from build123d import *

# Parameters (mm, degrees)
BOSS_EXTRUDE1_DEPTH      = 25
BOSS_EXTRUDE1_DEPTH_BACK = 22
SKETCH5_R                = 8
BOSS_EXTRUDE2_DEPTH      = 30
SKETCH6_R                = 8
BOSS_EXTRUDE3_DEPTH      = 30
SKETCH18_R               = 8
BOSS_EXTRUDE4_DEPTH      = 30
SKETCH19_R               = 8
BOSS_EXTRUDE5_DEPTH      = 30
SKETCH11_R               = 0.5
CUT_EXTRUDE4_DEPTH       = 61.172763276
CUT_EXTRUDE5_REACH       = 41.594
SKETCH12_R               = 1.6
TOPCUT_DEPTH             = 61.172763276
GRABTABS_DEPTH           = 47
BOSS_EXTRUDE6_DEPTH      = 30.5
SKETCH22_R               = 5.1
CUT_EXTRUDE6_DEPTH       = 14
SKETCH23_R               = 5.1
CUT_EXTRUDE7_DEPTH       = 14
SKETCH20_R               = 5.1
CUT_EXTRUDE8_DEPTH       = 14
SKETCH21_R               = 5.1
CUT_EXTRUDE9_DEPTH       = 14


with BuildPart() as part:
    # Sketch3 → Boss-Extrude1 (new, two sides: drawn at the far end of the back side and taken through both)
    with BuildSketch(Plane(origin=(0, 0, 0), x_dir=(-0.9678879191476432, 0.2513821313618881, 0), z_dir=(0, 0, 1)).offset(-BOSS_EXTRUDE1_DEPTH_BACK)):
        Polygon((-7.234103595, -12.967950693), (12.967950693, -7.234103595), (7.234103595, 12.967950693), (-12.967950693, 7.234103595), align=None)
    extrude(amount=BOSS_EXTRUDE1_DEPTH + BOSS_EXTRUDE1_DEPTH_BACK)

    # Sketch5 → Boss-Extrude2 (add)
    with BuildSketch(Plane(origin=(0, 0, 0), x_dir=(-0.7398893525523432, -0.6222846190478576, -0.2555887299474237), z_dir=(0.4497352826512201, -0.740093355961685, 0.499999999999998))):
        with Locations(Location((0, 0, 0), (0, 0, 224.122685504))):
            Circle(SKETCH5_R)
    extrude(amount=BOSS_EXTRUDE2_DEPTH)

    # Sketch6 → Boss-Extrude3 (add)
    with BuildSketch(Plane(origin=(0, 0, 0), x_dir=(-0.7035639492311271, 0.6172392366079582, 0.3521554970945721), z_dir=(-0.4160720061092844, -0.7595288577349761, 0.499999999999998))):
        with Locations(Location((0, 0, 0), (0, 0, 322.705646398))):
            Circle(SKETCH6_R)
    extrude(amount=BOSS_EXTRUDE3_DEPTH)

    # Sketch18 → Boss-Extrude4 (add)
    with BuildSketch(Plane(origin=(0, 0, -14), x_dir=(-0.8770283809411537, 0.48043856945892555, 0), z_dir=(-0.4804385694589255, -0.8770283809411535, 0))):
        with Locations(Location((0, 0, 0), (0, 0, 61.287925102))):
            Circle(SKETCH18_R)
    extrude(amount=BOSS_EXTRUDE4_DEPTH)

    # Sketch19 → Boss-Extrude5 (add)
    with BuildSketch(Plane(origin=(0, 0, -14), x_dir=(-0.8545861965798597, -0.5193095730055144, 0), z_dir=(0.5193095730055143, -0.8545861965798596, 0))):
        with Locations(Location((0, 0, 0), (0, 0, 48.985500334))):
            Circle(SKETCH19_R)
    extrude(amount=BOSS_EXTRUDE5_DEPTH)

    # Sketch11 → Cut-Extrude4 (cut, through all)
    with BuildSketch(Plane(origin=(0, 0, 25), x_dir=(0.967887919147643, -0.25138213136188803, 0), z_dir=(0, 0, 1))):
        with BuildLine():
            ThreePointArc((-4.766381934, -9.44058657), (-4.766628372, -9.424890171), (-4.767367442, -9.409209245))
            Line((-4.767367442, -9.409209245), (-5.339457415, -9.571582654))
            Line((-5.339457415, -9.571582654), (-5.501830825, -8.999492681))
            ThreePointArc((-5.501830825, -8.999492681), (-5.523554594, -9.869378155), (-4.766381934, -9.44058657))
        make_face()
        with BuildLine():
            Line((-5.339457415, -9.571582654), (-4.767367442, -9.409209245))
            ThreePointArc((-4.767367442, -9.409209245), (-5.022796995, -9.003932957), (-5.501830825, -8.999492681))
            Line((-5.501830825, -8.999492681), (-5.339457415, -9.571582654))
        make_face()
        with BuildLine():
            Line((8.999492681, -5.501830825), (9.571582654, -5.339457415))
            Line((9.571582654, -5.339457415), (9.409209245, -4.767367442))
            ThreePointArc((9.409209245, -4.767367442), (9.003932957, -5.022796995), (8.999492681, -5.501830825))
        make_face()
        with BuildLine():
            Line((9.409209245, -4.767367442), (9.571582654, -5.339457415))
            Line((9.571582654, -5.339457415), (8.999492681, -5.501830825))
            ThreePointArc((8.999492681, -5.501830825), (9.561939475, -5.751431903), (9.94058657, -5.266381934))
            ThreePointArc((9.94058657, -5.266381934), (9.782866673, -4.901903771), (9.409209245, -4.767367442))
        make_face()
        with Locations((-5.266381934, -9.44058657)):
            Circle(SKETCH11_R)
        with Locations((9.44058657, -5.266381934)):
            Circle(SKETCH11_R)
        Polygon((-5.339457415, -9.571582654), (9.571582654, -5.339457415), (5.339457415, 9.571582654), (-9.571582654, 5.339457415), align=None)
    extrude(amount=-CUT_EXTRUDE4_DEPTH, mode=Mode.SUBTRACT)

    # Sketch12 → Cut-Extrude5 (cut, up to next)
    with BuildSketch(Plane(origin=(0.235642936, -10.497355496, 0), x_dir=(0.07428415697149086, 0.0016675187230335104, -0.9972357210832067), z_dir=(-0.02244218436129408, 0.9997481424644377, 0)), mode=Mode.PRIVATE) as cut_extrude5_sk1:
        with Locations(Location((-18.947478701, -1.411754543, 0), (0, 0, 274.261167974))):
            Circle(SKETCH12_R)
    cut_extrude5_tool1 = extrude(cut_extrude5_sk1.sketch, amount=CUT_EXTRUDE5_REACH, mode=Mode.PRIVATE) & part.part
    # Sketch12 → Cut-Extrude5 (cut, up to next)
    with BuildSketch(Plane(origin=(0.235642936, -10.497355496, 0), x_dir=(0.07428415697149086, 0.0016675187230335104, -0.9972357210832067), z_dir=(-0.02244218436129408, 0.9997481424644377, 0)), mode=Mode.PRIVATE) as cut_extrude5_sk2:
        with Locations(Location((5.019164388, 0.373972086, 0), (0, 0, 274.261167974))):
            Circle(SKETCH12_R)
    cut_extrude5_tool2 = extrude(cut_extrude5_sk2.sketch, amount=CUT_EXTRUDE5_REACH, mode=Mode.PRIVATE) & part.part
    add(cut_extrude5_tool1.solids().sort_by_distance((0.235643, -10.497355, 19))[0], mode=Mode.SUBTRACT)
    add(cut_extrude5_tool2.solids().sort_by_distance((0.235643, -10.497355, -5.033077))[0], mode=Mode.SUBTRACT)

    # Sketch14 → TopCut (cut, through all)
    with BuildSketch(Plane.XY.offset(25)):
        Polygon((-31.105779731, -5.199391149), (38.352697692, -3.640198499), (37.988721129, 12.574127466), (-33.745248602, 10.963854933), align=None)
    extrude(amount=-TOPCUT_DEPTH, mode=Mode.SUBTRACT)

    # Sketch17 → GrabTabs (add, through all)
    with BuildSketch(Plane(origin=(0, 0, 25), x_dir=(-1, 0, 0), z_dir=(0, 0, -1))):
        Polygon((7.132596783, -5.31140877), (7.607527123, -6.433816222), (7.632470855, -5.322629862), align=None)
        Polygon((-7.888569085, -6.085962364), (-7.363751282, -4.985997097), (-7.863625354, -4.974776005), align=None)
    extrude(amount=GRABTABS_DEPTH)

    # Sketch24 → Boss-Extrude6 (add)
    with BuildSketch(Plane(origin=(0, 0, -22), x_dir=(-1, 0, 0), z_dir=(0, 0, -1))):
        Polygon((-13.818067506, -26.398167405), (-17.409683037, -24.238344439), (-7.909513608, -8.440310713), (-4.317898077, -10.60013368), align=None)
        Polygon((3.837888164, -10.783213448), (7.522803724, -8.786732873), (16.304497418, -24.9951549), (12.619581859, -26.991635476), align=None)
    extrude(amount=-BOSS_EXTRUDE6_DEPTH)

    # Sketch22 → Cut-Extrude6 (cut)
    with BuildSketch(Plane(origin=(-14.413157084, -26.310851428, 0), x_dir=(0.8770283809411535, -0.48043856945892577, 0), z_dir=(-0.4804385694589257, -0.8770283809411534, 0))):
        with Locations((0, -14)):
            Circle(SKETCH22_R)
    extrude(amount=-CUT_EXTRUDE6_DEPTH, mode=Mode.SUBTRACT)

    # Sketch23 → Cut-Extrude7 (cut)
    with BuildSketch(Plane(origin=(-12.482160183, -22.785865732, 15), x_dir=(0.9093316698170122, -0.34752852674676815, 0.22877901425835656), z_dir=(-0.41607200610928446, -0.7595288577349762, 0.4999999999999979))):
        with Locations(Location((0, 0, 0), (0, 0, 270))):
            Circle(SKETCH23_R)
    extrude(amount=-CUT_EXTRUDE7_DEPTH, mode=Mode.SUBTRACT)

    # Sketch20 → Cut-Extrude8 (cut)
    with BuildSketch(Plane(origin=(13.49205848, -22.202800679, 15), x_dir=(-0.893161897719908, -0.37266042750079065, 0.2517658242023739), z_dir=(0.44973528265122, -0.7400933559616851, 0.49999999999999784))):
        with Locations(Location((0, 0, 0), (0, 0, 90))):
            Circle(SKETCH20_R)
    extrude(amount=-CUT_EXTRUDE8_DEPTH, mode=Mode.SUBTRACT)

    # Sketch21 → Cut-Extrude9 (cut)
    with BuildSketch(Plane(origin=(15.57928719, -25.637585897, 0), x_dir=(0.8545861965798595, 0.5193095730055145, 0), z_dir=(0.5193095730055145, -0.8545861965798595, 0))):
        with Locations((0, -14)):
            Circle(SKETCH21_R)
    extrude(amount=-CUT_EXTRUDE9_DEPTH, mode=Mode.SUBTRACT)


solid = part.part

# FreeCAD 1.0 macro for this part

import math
import FreeCAD as App
import Part
import Sketcher

V = App.Vector
Q = App.Units.Quantity


def add_polygon(sketch, points):
    """Adds a closed chain of lines whose ends are joined by coincident constraints."""
    first, n = sketch.GeometryCount, len(points)
    for a, b in zip(points, points[1:] + points[:1]):
        sketch.addGeometry(Part.LineSegment(App.Vector(*a, 0), App.Vector(*b, 0)), False)
    for i in range(n):
        sketch.addConstraint(Sketcher.Constraint("Coincident", first + i, 2, first + (i + 1) % n, 1))

doc = App.newDocument("Part")
body = doc.addObject("PartDesign::Body", "Body")

# Sketch on XY plane
sketch1 = doc.addObject("Sketcher::SketchObject", "Sketch")
body.addObject(sketch1)
sketch1.AttachmentSupport = (doc.XY_Plane, [""])
sketch1.MapMode = "FlatFace"
add_polygon(sketch1, [(10.261713, 10.732998), (-10.732998, 10.261713), (-10.261713, -10.732998), (10.732998, -10.261713)])  # lines 0-3
sketch1.addConstraint(Sketcher.Constraint("Symmetric", 0, 2, 2, 2, -1, 1))
sketch1.addConstraint(Sketcher.Constraint("Symmetric", 1, 2, 3, 2, -1, 1))
sketch1.addConstraint(Sketcher.Constraint("Perpendicular", 0, 1))
sketch1.addConstraint(Sketcher.Constraint("Equal", 0, 1))
sketch1.addConstraint(Sketcher.Constraint("Distance", 0, Q("21 mm")))
sketch1.addConstraint(Sketcher.Constraint("DistanceX", 0, 2, -1, 1, Q("10.732998 mm")))
pad1 = doc.addObject("PartDesign::Pad", "Pad")
body.addObject(pad1)
pad1.Profile = sketch1
pad1.Type = "TwoLengths"
pad1.Length = 25
pad1.Length2 = 22

# Sketch on an angled plane
sketch2 = doc.addObject("Sketcher::SketchObject", "Sketch001")
body.addObject(sketch2)
sketch2.Placement = App.Placement(V(0, 0, 0), App.Rotation(V(-0.739889353, -0.622284619, -0.25558873), V(0.50030183, -0.254997407, -0.827450544), V(0.449735283, -0.740093356, 0.5), "ZXY"))
sketch2.addGeometry(Part.Circle(V(0, 0, 0), V(0, 0, 1), 8), False)
sketch2.addConstraint(Sketcher.Constraint("Coincident", 0, 3, -1, 1))
sketch2.addConstraint(Sketcher.Constraint("Diameter", 0, Q("16 mm")))
pad2 = doc.addObject("PartDesign::Pad", "Pad001")
body.addObject(pad2)
pad2.Profile = sketch2
pad2.Length = 30

# Sketch on an angled plane
sketch3 = doc.addObject("Sketcher::SketchObject", "Sketch002")
body.addObject(sketch3)
sketch3.Placement = App.Placement(V(0, 0, 0), App.Rotation(V(-0.703563949, 0.617239237, 0.352155497), V(-0.576091881, -0.20525993, -0.79119309), V(-0.416072006, -0.759528858, 0.5), "ZXY"))
sketch3.addGeometry(Part.Circle(V(0, 0, 0), V(0, 0, 1), 8), False)
sketch3.addConstraint(Sketcher.Constraint("Coincident", 0, 3, -1, 1))
sketch3.addConstraint(Sketcher.Constraint("Diameter", 0, Q("16 mm")))
pad3 = doc.addObject("PartDesign::Pad", "Pad002")
body.addObject(pad3)
pad3.Profile = sketch3
pad3.Length = 30

# Sketch on an angled plane
sketch4 = doc.addObject("Sketcher::SketchObject", "Sketch003")
body.addObject(sketch4)
sketch4.Placement = App.Placement(V(0, 0, -14), App.Rotation(V(-0.877028381, 0.480438569, 0), V(0, 0, -1), V(-0.480438569, -0.877028381, 0), "ZXY"))
sketch4.addGeometry(Part.Circle(V(0, 0, 0), V(0, 0, 1), 8), False)
sketch4.addConstraint(Sketcher.Constraint("Coincident", 0, 3, -1, 1))
sketch4.addConstraint(Sketcher.Constraint("Diameter", 0, Q("16 mm")))
pad4 = doc.addObject("PartDesign::Pad", "Pad003")
body.addObject(pad4)
pad4.Profile = sketch4
pad4.Length = 30

# Sketch on an angled plane
sketch5 = doc.addObject("Sketcher::SketchObject", "Sketch004")
body.addObject(sketch5)
sketch5.Placement = App.Placement(V(0, 0, -14), App.Rotation(V(-0.854586197, -0.519309573, 0), V(0, 0, -1.000000001), V(0.519309573, -0.854586197, 0), "ZXY"))
sketch5.addGeometry(Part.Circle(V(0, 0, 0), V(0, 0, 1), 8), False)
sketch5.addConstraint(Sketcher.Constraint("Coincident", 0, 3, -1, 1))
sketch5.addConstraint(Sketcher.Constraint("Diameter", 0, Q("16 mm")))
pad5 = doc.addObject("PartDesign::Pad", "Pad004")
body.addObject(pad5)
pad5.Profile = sketch5
pad5.Length = 30

# Sketch on XY plane
sketch6 = doc.addObject("Sketcher::SketchObject", "Sketch005")
body.addObject(sketch6)
sketch6.AttachmentSupport = (doc.XY_Plane, [""])
sketch6.MapMode = "FlatFace"
sketch6.AttachmentOffset = App.Placement(V(0, 0, 25), App.Rotation())
sketch6.addGeometry(Part.ArcOfCircle(Part.Circle(V(-7.470462, -7.813555, 0), V(0, 0, 1), 0.5), math.radians(103.533275), math.radians(345.440685)), False)
sketch6.addGeometry(Part.ArcOfCircle(Part.Circle(V(-7.470463, -7.813555, 0), V(0, 0, 1), 0.5), math.radians(-14.559313), math.radians(-10.961375)), False)
sketch6.addGeometry(Part.LineSegment(V(-6.979584, -7.908629, 0), V(7.327438, -7.587467, 0)), False)
sketch6.addGeometry(Part.ArcOfCircle(Part.Circle(V(7.813555, -7.470462, 0), V(0, 0, 1), 0.5), math.radians(-166.466725), math.radians(-14.559315)), False)
sketch6.addGeometry(Part.ArcOfCircle(Part.Circle(V(7.813555, -7.470462, 0), V(0, 0, 1), 0.5), math.radians(-14.559315), math.radians(79.038626)), False)
sketch6.addGeometry(Part.LineSegment(V(7.908629, -6.979584, 0), V(7.574121, 7.921975, 0)), False)
sketch6.addGeometry(Part.LineSegment(V(7.574121, 7.921975, 0), V(-7.921975, 7.574121, 0)), False)
sketch6.addGeometry(Part.LineSegment(V(-7.921975, 7.574121, 0), V(-7.587467, -7.327438, 0)), False)
sketch6.addConstraint(Sketcher.Constraint("Tangent", 0, 2, 1, 1))
sketch6.addConstraint(Sketcher.Constraint("Coincident", 1, 2, 2, 1))
sketch6.addConstraint(Sketcher.Constraint("Coincident", 2, 2, 3, 1))
sketch6.addConstraint(Sketcher.Constraint("Tangent", 3, 2, 4, 1))
sketch6.addConstraint(Sketcher.Constraint("Coincident", 4, 2, 5, 1))
sketch6.addConstraint(Sketcher.Constraint("Coincident", 5, 2, 6, 1))
sketch6.addConstraint(Sketcher.Constraint("Coincident", 6, 2, 7, 1))
sketch6.addConstraint(Sketcher.Constraint("Coincident", 7, 2, 0, 1))
sketch6.addConstraint(Sketcher.Constraint("Equal", 0, 1))
sketch6.addConstraint(Sketcher.Constraint("Equal", 1, 3))
sketch6.addConstraint(Sketcher.Constraint("Equal", 3, 4))
sketch6.addConstraint(Sketcher.Constraint("Perpendicular", 2, 5))
sketch6.addConstraint(Sketcher.Constraint("Perpendicular", 5, 6))
sketch6.addConstraint(Sketcher.Constraint("Perpendicular", 6, 7))
sketch6.addConstraint(Sketcher.Constraint("Equal", 5, 7))
sketch6.addConstraint(Sketcher.Constraint("Radius", 0, Q("0.5 mm")))
sketch6.addConstraint(Sketcher.Constraint("Distance", 6, Q("15.5 mm")))
sketch6.addConstraint(Sketcher.Constraint("DistanceX", -1, 1, 3, 2, Q("8.297499 mm")))
sketch6.addConstraint(Sketcher.Constraint("DistanceX", 0, 3, 2, 2, Q("14.797901 mm")))
sketch6.addConstraint(Sketcher.Constraint("DistanceX", 0, 2, -1, 1, Q("6.986518 mm")))
sketch6.addConstraint(Sketcher.Constraint("DistanceY", 1, 2, -1, 1, Q("7.908629 mm")))
sketch6.addConstraint(Sketcher.Constraint("DistanceX", -1, 1, 2, 2, Q("7.327438 mm")))
sketch6.addConstraint(Sketcher.Constraint("DistanceX", -1, 1, 4, 2, Q("7.908629 mm")))
sketch6.addConstraint(Sketcher.Constraint("DistanceX", -1, 1, 5, 2, Q("7.574121 mm")))
sketch6.addConstraint(Sketcher.Constraint("DistanceY", -1, 1, 6, 2, Q("7.574121 mm")))
sketch6.addConstraint(Sketcher.Constraint("DistanceY", 7, 2, -1, 1, Q("7.327438 mm")))
pocket1 = doc.addObject("PartDesign::Pocket", "Pocket")
body.addObject(pocket1)
pocket1.Profile = sketch6
pocket1.Type = "ThroughAll"

# Sketch on an angled plane
sketch7 = doc.addObject("Sketcher::SketchObject", "Sketch006")
body.addObject(sketch7)
sketch7.Placement = App.Placement(V(0.235643, -10.497355, 0), App.Rotation(V(0.074284157, 0.001667519, -0.997235721), V(-0.996984559, -0.022380148, -0.074302871), V(-0.022442184, 0.999748142, 0), "ZXY"))
sketch7.addGeometry(Part.Circle(V(-18.947479, -1.411755, 0), V(0, 0, 1), 1.6), False)
sketch7.addConstraint(Sketcher.Constraint("Diameter", 0, Q("3.2 mm")))
sketch7.addConstraint(Sketcher.Constraint("DistanceX", 0, 3, -1, 1, Q("18.947479 mm")))
sketch7.addConstraint(Sketcher.Constraint("DistanceY", 0, 3, -1, 1, Q("1.411755 mm")))
pocket2 = doc.addObject("PartDesign::Pocket", "Pocket001")
body.addObject(pocket2)
pocket2.Profile = sketch7
pocket2.Type = "UpToFirst"
pocket2.Reversed = True

# Sketch on an angled plane
sketch8 = doc.addObject("Sketcher::SketchObject", "Sketch007")
body.addObject(sketch8)
sketch8.Placement = App.Placement(V(0.235643, -10.497355, 0), App.Rotation(V(0.074284157, 0.001667519, -0.997235721), V(-0.996984559, -0.022380148, -0.074302871), V(-0.022442184, 0.999748142, 0), "ZXY"))
sketch8.addGeometry(Part.Circle(V(5.019164, 0.373972, 0), V(0, 0, 1), 1.6), False)
sketch8.addConstraint(Sketcher.Constraint("Diameter", 0, Q("3.2 mm")))
sketch8.addConstraint(Sketcher.Constraint("DistanceX", -1, 1, 0, 3, Q("5.019164 mm")))
sketch8.addConstraint(Sketcher.Constraint("DistanceY", -1, 1, 0, 3, Q("0.373972 mm")))
pocket3 = doc.addObject("PartDesign::Pocket", "Pocket002")
body.addObject(pocket3)
pocket3.Profile = sketch8
pocket3.Type = "UpToFirst"
pocket3.Reversed = True

# Sketch on XY plane
sketch9 = doc.addObject("Sketcher::SketchObject", "Sketch008")
body.addObject(sketch9)
sketch9.AttachmentSupport = (doc.XY_Plane, [""])
sketch9.MapMode = "FlatFace"
sketch9.AttachmentOffset = App.Placement(V(0, 0, 25), App.Rotation())
add_polygon(sketch9, [(-31.10578, -5.199391), (38.352698, -3.640198), (37.988721, 12.574127), (-33.745249, 10.963855)])  # lines 0-3
sketch9.addConstraint(Sketcher.Constraint("Perpendicular", 0, 1))
sketch9.addConstraint(Sketcher.Constraint("Perpendicular", 1, 2))
sketch9.addConstraint(Sketcher.Constraint("DistanceY", 0, 2, -1, 1, Q("3.640198 mm")))
sketch9.addConstraint(Sketcher.Constraint("DistanceX", 3, 2, 1, 2, Q("69.094501 mm")))
sketch9.addConstraint(Sketcher.Constraint("Distance", 1, Q("16.218411 mm")))
sketch9.addConstraint(Sketcher.Constraint("Distance", 2, Q("71.752041 mm")))
sketch9.addConstraint(Sketcher.Constraint("Distance", 3, Q("16.377342 mm")))
sketch9.addConstraint(Sketcher.Constraint("DistanceX", -1, 1, 1, 2, Q("37.988721 mm")))
pocket4 = doc.addObject("PartDesign::Pocket", "Pocket003")
body.addObject(pocket4)
pocket4.Profile = sketch9
pocket4.Type = "ThroughAll"

# Sketch on XY plane
sketch10 = doc.addObject("Sketcher::SketchObject", "Sketch009")
body.addObject(sketch10)
sketch10.AttachmentSupport = (doc.XY_Plane, [""])
sketch10.MapMode = "FlatFace"
sketch10.AttachmentOffset = App.Placement(V(0, 0, 25), App.Rotation())
add_polygon(sketch10, [(-7.132597, -5.311409), (-7.607527, -6.433816), (-7.632471, -5.32263)])  # lines 0-2
add_polygon(sketch10, [(7.888569, -6.085962), (7.363751, -4.985997), (7.863625, -4.974776)])  # lines 3-5
sketch10.addConstraint(Sketcher.Constraint("Perpendicular", 1, 2))
sketch10.addConstraint(Sketcher.Constraint("Parallel", 2, 4))
sketch10.addConstraint(Sketcher.Constraint("Perpendicular", 4, 5))
sketch10.addConstraint(Sketcher.Constraint("Equal", 0, 3))
sketch10.addConstraint(Sketcher.Constraint("Equal", 2, 4))
sketch10.addConstraint(Sketcher.Constraint("Distance", 2, Q("0.5 mm")))
sketch10.addConstraint(Sketcher.Constraint("DistanceX", 1, 2, -1, 1, Q("7.632471 mm")))
sketch10.addConstraint(Sketcher.Constraint("DistanceY", 1, 2, -1, 1, Q("5.32263 mm")))
sketch10.addConstraint(Sketcher.Constraint("DistanceY", 2, 2, -1, 1, Q("5.311409 mm")))
sketch10.addConstraint(Sketcher.Constraint("DistanceX", -1, 1, 3, 2, Q("7.363751 mm")))
sketch10.addConstraint(Sketcher.Constraint("DistanceX", -1, 1, 5, 2, Q("7.888569 mm")))
sketch10.addConstraint(Sketcher.Constraint("DistanceY", 2, 2, 3, 2, Q("0.325412 mm")))
pad6 = doc.addObject("PartDesign::Pad", "Pad005")
body.addObject(pad6)
pad6.Profile = sketch10
pad6.Length = 47
pad6.Reversed = True

# Sketch on XY plane
sketch11 = doc.addObject("Sketcher::SketchObject", "Sketch010")
body.addObject(sketch11)
sketch11.AttachmentSupport = (doc.XY_Plane, [""])
sketch11.MapMode = "FlatFace"
sketch11.AttachmentOffset = App.Placement(V(0, 0, -22), App.Rotation())
add_polygon(sketch11, [(17.409683, -24.238344), (13.818068, -26.398167), (4.317898, -10.600134), (7.909514, -8.440311)])  # lines 0-3
add_polygon(sketch11, [(-7.522804, -8.786733), (-3.837888, -10.783213), (-12.619582, -26.991635), (-16.304497, -24.995155)])  # lines 4-7
sketch11.addConstraint(Sketcher.Constraint("Perpendicular", 0, 1))
sketch11.addConstraint(Sketcher.Constraint("Perpendicular", 1, 2))
sketch11.addConstraint(Sketcher.Constraint("Perpendicular", 2, 3))
sketch11.addConstraint(Sketcher.Constraint("Perpendicular", 4, 5))
sketch11.addConstraint(Sketcher.Constraint("Perpendicular", 5, 6))
sketch11.addConstraint(Sketcher.Constraint("Perpendicular", 6, 7))
sketch11.addConstraint(Sketcher.Constraint("Equal", 2, 4))
sketch11.addConstraint(Sketcher.Constraint("Equal", 3, 5))
sketch11.addConstraint(Sketcher.Constraint("DistanceX", -1, 1, 1, 2, Q("4.317898 mm")))
sketch11.addConstraint(Sketcher.Constraint("DistanceX", 4, 2, 2, 2, Q("11.747402 mm")))
sketch11.addConstraint(Sketcher.Constraint("DistanceY", 5, 2, 1, 2, Q("16.391502 mm")))
sketch11.addConstraint(Sketcher.Constraint("DistanceX", 7, 2, 1, 2, Q("11.840702 mm")))
sketch11.addConstraint(Sketcher.Constraint("DistanceY", 1, 2, 7, 2, Q("1.813401 mm")))
sketch11.addConstraint(Sketcher.Constraint("Distance", 1, Q("18.434508 mm")))
sketch11.addConstraint(Sketcher.Constraint("DistanceY", 2, 2, -1, 1, Q("8.440311 mm")))
sketch11.addConstraint(Sketcher.Constraint("DistanceX", 4, 2, -1, 1, Q("3.837888 mm")))
pad7 = doc.addObject("PartDesign::Pad", "Pad006")
body.addObject(pad7)
pad7.Profile = sketch11
pad7.Length = 30.5

# Sketch on an angled plane
sketch12 = doc.addObject("Sketcher::SketchObject", "Sketch011")
body.addObject(sketch12)
sketch12.Placement = App.Placement(V(-14.413157, -26.310851, 0), App.Rotation(V(0.877028381, -0.480438569, 0), V(0, 0, 1), V(-0.480438569, -0.877028381, 0), "ZXY"))
sketch12.addGeometry(Part.Circle(V(0, -14, 0), V(0, 0, 1), 5.1), False)
sketch12.addConstraint(Sketcher.Constraint("PointOnObject", 0, 3, -2))
sketch12.addConstraint(Sketcher.Constraint("Diameter", 0, Q("10.2 mm")))
sketch12.addConstraint(Sketcher.Constraint("DistanceY", 0, 3, -1, 1, Q("14 mm")))
pocket5 = doc.addObject("PartDesign::Pocket", "Pocket004")
body.addObject(pocket5)
pocket5.Profile = sketch12
pocket5.Length = 14

# Sketch on an angled plane
sketch13 = doc.addObject("Sketcher::SketchObject", "Sketch012")
body.addObject(sketch13)
sketch13.Placement = App.Placement(V(-12.48216, -22.785866, 15), App.Rotation(V(0.90933167, -0.347528527, 0.228779014), V(0, 0.549854378, 0.835260536), V(-0.416072006, -0.759528858, 0.5), "ZXY"))
sketch13.addGeometry(Part.Circle(V(0, 0, 0), V(0, 0, 1), 5.1), False)
sketch13.addConstraint(Sketcher.Constraint("Coincident", 0, 3, -1, 1))
sketch13.addConstraint(Sketcher.Constraint("Diameter", 0, Q("10.2 mm")))
pocket6 = doc.addObject("PartDesign::Pocket", "Pocket005")
body.addObject(pocket6)
pocket6.Profile = sketch13
pocket6.Length = 14

# Sketch on an angled plane
sketch14 = doc.addObject("Sketcher::SketchObject", "Sketch013")
body.addObject(sketch14)
sketch14.Placement = App.Placement(V(13.492058, -22.202801, 15), App.Rotation(V(-0.893161898, -0.372660428, 0.251765824), V(0, -0.559808923, -0.82862173), V(0.449735283, -0.740093356, 0.5), "ZXY"))
sketch14.addGeometry(Part.Circle(V(0, 0, 0), V(0, 0, 1), 5.1), False)
sketch14.addConstraint(Sketcher.Constraint("Coincident", 0, 3, -1, 1))
sketch14.addConstraint(Sketcher.Constraint("Diameter", 0, Q("10.2 mm")))
pocket7 = doc.addObject("PartDesign::Pocket", "Pocket006")
body.addObject(pocket7)
pocket7.Profile = sketch14
pocket7.Length = 14

# Sketch on an angled plane
sketch15 = doc.addObject("Sketcher::SketchObject", "Sketch014")
body.addObject(sketch15)
sketch15.Placement = App.Placement(V(15.579287, -25.637586, 0), App.Rotation(V(0.854586197, 0.519309573, 0), V(0, 0, 1.000000001), V(0.519309573, -0.854586197, 0), "ZXY"))
sketch15.addGeometry(Part.Circle(V(0, -14, 0), V(0, 0, 1), 5.1), False)
sketch15.addConstraint(Sketcher.Constraint("PointOnObject", 0, 3, -2))
sketch15.addConstraint(Sketcher.Constraint("Diameter", 0, Q("10.2 mm")))
sketch15.addConstraint(Sketcher.Constraint("DistanceY", 0, 3, -1, 1, Q("14 mm")))
pocket8 = doc.addObject("PartDesign::Pocket", "Pocket007")
body.addObject(pocket8)
pocket8.Profile = sketch15
pocket8.Length = 14

doc.recompute()
